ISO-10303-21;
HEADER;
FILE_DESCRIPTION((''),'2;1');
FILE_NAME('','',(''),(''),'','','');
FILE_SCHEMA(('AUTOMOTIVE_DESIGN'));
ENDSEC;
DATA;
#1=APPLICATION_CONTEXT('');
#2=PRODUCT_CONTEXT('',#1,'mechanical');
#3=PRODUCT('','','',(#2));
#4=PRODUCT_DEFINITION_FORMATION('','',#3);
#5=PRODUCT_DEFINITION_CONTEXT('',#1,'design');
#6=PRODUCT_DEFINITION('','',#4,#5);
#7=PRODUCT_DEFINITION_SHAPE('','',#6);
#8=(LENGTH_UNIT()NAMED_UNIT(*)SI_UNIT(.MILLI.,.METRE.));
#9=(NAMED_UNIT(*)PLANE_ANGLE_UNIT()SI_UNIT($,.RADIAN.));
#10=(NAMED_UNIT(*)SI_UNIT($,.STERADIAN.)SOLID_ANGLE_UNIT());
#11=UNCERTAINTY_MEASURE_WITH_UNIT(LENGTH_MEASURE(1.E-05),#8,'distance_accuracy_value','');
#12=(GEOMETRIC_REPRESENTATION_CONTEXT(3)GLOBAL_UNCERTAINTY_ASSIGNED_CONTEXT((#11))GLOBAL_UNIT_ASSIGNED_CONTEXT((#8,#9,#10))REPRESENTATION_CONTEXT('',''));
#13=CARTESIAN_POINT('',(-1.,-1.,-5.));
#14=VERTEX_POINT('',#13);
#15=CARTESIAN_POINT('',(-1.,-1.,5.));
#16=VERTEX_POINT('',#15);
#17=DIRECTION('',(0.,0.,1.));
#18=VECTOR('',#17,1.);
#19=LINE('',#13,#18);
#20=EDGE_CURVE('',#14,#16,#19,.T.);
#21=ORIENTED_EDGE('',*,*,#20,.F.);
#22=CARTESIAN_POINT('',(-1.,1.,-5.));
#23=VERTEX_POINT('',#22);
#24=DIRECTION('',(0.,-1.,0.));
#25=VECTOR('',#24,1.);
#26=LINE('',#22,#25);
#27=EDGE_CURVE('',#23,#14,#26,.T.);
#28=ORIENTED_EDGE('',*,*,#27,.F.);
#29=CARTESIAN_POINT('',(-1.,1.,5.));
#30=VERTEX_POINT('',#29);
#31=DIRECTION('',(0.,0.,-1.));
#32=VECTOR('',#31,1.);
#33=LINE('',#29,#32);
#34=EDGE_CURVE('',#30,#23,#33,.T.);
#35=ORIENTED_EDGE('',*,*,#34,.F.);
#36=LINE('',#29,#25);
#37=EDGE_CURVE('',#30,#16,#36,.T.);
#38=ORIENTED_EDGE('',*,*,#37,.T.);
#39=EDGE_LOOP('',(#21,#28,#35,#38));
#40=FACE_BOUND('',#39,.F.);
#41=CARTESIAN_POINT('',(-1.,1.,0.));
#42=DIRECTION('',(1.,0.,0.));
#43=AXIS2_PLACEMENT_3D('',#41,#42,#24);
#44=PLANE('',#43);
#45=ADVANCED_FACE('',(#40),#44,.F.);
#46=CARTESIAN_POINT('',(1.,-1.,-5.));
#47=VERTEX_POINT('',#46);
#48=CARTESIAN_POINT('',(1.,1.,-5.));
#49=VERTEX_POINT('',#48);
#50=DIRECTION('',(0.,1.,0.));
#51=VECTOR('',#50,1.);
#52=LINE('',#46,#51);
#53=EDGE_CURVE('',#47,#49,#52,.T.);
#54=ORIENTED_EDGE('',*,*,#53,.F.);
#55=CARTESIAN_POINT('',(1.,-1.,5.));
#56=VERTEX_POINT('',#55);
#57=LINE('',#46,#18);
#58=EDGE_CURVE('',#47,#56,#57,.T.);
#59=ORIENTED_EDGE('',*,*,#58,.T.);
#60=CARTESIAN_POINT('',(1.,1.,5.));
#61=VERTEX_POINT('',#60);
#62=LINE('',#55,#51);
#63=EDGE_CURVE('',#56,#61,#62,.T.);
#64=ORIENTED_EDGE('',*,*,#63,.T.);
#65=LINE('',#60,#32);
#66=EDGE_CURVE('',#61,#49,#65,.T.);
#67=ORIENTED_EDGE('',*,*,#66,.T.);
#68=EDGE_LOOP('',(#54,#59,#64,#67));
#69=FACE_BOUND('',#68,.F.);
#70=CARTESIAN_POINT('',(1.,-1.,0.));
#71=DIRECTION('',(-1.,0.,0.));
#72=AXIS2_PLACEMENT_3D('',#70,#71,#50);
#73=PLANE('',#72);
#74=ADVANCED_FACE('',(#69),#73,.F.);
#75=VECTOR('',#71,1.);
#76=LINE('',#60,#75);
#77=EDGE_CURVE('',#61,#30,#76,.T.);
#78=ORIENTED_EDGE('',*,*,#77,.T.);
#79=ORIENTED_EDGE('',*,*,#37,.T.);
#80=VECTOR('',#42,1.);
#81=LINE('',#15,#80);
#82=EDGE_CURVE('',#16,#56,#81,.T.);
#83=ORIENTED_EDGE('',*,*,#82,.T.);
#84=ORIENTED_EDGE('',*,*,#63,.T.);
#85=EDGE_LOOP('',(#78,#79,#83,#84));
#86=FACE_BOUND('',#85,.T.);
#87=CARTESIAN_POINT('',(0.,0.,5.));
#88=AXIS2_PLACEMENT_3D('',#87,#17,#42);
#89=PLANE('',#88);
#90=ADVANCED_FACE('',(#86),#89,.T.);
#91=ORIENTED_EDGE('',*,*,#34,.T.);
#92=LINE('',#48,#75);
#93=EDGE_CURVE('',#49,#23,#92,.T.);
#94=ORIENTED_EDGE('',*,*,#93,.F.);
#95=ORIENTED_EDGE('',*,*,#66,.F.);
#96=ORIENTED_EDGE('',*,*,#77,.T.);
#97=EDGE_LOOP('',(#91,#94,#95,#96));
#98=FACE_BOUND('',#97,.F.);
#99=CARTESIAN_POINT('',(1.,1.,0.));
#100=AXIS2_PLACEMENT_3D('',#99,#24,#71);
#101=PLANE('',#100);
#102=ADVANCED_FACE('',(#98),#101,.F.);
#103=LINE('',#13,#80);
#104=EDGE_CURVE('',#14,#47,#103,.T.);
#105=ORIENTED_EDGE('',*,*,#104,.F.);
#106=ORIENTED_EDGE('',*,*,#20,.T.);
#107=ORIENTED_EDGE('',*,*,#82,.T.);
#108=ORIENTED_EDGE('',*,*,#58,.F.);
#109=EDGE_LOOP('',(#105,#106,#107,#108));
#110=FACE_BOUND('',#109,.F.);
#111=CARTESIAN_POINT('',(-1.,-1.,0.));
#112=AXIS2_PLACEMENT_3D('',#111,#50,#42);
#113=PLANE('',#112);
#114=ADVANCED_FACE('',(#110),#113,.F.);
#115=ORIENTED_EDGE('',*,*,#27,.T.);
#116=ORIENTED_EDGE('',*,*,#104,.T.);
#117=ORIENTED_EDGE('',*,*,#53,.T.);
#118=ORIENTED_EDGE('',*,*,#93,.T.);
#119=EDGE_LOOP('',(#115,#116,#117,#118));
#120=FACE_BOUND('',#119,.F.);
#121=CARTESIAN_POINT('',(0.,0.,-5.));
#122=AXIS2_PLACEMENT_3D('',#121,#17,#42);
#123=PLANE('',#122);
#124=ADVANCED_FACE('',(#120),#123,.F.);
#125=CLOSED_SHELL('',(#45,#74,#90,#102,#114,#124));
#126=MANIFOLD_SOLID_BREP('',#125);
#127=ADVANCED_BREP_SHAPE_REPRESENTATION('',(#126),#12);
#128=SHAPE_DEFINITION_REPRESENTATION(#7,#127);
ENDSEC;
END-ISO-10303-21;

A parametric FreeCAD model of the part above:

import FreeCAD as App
import Part
import Sketcher

V = App.Vector
Q = App.Units.Quantity


def add_polygon(sketch, points):
    """Adds a closed chain of lines whose ends are joined by coincident constraints."""
    first, n = sketch.GeometryCount, len(points)
    for a, b in zip(points, points[1:] + points[:1]):
        sketch.addGeometry(Part.LineSegment(App.Vector(*a, 0), App.Vector(*b, 0)), False)
    for i in range(n):
        sketch.addConstraint(Sketcher.Constraint("Coincident", first + i, 2, first + (i + 1) % n, 1))

doc = App.newDocument("Part")
params = doc.addObject("Spreadsheet::Sheet", "Params")
for row, (alias, value) in enumerate([
    ("sketch1_width", "2 mm"),
    ("pad1_length", "10 mm"),
], start=1):
    params.set(f"A{row}", alias)
    params.set(f"B{row}", "=" + value)
    params.setAlias(f"B{row}", alias)

body = doc.addObject("PartDesign::Body", "Body")

sketch1 = doc.addObject("Sketcher::SketchObject", "Sketch")
body.addObject(sketch1)
sketch1.AttachmentSupport = (doc.XY_Plane, [""])
sketch1.MapMode = "FlatFace"
add_polygon(sketch1, [(-1, 1), (-1, -1), (1, -1), (1, 1)])
sketch1.addConstraint([
    Sketcher.Constraint("Vertical", 0),
    Sketcher.Constraint("Horizontal", 1),
    Sketcher.Constraint("Vertical", 2),
    Sketcher.Constraint("Horizontal", 3),
    Sketcher.Constraint("Symmetric", 0, 2, 2, 2, -1, 1),
    Sketcher.Constraint("Equal", 3, 0),
    Sketcher.Constraint("DistanceX", 1, 1, 1, 2, Q("2 mm")),
])
sketch1.setExpression("Constraints[10]", "Params.sketch1_width")
pad1 = doc.addObject("PartDesign::Pad", "Pad")
body.addObject(pad1)
pad1.Profile = sketch1
pad1.setExpression("Length", "Params.pad1_length")
pad1.Midplane = True

doc.recompute()
